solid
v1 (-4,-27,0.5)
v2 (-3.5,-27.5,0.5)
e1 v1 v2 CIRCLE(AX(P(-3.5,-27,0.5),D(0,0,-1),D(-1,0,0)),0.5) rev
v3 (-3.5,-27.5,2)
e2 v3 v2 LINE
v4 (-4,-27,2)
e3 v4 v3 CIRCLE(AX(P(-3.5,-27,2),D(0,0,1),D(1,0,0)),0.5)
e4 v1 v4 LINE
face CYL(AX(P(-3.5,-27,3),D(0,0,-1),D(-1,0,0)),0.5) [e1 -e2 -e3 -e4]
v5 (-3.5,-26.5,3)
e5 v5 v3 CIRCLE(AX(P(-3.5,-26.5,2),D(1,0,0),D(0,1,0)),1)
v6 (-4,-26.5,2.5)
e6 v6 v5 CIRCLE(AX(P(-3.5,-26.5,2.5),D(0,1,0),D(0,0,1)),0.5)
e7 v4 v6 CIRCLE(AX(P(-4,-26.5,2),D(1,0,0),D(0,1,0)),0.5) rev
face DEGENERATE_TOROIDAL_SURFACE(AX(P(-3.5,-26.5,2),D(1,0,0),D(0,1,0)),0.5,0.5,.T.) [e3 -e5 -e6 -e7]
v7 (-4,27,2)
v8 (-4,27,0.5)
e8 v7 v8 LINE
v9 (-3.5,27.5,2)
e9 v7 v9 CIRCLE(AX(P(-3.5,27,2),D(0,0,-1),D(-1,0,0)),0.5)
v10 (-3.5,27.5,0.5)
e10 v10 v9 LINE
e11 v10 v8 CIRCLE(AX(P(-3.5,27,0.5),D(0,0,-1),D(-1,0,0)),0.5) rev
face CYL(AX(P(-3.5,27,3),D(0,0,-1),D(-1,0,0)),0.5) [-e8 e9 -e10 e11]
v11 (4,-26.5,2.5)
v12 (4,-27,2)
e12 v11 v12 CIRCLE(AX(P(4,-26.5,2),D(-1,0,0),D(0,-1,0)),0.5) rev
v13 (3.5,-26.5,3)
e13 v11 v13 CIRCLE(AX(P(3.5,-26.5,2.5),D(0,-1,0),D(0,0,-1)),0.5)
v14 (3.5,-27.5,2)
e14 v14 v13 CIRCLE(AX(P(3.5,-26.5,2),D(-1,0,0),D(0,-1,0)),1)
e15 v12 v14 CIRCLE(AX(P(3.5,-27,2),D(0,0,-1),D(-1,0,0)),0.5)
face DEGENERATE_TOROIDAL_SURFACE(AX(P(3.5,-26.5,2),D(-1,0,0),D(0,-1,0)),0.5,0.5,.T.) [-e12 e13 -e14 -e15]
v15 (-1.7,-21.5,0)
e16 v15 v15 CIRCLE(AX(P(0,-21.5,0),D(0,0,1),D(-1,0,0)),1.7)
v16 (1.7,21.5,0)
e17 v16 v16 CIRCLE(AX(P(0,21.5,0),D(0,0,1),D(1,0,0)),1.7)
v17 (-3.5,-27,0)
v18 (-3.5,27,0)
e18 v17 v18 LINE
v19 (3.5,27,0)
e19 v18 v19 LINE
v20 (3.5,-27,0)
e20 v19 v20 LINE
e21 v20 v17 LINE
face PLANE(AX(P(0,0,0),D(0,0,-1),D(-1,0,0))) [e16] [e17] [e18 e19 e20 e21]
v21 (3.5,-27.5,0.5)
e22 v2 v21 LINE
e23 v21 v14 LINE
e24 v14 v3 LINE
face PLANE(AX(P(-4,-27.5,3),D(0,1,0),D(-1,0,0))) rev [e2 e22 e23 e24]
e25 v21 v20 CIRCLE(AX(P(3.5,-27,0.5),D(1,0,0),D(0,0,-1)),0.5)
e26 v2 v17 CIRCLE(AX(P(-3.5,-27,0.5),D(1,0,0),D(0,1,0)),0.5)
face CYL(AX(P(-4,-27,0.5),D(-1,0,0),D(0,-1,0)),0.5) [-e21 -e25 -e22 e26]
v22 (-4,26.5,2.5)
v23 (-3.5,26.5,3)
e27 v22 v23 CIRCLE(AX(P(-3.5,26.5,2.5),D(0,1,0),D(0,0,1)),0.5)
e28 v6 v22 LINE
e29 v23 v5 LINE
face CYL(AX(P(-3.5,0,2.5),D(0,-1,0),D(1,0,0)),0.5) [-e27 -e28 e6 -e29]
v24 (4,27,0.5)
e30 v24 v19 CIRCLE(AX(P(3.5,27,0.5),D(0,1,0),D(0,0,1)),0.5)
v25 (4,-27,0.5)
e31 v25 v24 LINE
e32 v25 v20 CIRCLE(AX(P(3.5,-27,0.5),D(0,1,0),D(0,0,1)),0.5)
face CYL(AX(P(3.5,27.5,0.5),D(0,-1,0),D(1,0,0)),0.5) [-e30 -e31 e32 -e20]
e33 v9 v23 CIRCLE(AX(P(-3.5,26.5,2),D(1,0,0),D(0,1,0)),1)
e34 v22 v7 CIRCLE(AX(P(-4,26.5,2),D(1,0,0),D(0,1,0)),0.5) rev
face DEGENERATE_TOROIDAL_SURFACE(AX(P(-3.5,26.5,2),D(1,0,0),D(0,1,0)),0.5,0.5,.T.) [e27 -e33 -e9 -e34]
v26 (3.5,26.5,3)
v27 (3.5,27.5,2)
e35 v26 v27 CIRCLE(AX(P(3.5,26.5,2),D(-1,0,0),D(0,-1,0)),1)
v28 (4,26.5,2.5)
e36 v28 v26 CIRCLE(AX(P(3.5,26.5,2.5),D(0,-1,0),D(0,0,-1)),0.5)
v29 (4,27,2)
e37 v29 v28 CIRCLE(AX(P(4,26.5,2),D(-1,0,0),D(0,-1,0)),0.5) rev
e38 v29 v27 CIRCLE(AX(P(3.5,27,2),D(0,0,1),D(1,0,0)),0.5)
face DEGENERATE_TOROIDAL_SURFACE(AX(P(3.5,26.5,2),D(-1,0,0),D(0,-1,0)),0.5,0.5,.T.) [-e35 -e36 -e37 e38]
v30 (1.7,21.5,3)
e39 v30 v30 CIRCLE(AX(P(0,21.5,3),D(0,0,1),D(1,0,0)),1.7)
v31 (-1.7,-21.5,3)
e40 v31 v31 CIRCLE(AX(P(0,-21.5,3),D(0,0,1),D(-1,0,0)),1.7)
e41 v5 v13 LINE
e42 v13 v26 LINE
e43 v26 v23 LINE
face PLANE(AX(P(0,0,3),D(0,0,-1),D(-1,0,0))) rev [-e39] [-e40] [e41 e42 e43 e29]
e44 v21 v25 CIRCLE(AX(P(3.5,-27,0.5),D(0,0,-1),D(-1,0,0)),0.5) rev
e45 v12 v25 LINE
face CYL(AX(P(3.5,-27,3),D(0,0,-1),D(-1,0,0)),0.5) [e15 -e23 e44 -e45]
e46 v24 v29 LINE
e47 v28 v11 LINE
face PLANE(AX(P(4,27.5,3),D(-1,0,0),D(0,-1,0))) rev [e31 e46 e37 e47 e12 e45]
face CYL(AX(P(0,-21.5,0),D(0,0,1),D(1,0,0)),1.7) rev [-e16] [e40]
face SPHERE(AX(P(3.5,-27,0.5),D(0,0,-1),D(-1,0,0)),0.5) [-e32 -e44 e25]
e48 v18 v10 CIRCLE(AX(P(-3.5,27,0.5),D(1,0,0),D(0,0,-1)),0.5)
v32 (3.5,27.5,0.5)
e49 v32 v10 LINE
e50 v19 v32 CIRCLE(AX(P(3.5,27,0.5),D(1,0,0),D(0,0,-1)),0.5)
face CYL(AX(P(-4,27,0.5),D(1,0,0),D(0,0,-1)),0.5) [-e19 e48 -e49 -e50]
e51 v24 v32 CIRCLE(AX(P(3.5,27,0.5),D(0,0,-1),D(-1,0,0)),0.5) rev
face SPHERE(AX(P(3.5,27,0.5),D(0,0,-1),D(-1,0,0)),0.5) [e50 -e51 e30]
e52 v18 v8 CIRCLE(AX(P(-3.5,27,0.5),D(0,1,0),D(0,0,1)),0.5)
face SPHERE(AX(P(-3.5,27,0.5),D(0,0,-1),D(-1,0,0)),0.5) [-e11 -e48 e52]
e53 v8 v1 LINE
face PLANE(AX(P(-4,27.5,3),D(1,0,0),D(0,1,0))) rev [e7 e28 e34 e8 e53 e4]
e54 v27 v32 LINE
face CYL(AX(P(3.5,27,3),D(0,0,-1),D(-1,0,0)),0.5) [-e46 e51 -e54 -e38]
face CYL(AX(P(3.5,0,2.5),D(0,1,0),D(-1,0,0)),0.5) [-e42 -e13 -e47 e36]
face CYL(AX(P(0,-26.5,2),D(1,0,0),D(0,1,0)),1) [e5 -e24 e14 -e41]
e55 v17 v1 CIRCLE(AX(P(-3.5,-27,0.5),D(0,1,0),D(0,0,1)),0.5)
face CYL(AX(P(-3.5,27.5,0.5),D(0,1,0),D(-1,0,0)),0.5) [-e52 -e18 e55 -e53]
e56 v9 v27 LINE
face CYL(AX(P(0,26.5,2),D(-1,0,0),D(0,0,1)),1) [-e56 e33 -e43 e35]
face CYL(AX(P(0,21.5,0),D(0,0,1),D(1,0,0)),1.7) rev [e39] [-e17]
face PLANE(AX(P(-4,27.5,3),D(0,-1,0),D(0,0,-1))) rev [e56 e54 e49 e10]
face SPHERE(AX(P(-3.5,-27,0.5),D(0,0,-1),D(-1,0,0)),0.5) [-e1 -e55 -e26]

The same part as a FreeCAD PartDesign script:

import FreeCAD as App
import Part
import Sketcher
Q = App.Units.Quantity


def edges_at(feature, points):
    """Names of the edges that pass closest to the given points."""
    edges = feature.Shape.Edges
    near = lambda p: min(range(len(edges)), key=lambda i: edges[i].distToShape(Part.Vertex(*p))[0])
    return sorted({f"Edge{near(p) + 1}" for p in points})

doc = App.newDocument("Part")
body = doc.addObject("PartDesign::Body", "Body")

# Sketch on XY plane
sketch1 = body.newObject("Sketcher::SketchObject", "Sketch")
sketch1.AttachmentSupport = (doc.getObject("XY_Plane"), [""])
sketch1.MapMode = "FlatFace"
sketch1.addGeometry(Part.LineSegment(App.Vector(-4, -27.5, 0), App.Vector(4, -27.5, 0)), False)
sketch1.addGeometry(Part.LineSegment(App.Vector(4, -27.5, 0), App.Vector(4, 27.5, 0)), False)
sketch1.addGeometry(Part.LineSegment(App.Vector(4, 27.5, 0), App.Vector(-4, 27.5, 0)), False)
sketch1.addGeometry(Part.LineSegment(App.Vector(-4, 27.5, 0), App.Vector(-4, -27.5, 0)), False)
sketch1.addConstraint(Sketcher.Constraint("Coincident", 0, 2, 1, 1))
sketch1.addConstraint(Sketcher.Constraint("Coincident", 1, 2, 2, 1))
sketch1.addConstraint(Sketcher.Constraint("Coincident", 2, 2, 3, 1))
sketch1.addConstraint(Sketcher.Constraint("Coincident", 3, 2, 0, 1))
sketch1.addConstraint(Sketcher.Constraint("Horizontal", 0))
sketch1.addConstraint(Sketcher.Constraint("Vertical", 1))
sketch1.addConstraint(Sketcher.Constraint("Horizontal", 2))
sketch1.addConstraint(Sketcher.Constraint("Vertical", 3))
sketch1.addConstraint(Sketcher.Constraint("Symmetric", 0, 2, 2, 2, -1, 1))
sketch1.addConstraint(Sketcher.Constraint("DistanceX", 0, 1, 0, 2, Q("8 mm")))
sketch1.addConstraint(Sketcher.Constraint("DistanceY", 1, 1, 1, 2, Q("55 mm")))
pad1 = body.newObject("PartDesign::Pad", "Pad")
pad1.Profile = sketch1
pad1.Length = 3

# Sketch on XY plane
sketch2 = body.newObject("Sketcher::SketchObject", "Sketch001")
sketch2.AttachmentSupport = (doc.getObject("XY_Plane"), [""])
sketch2.MapMode = "FlatFace"
sketch2.AttachmentOffset = App.Placement(App.Vector(0, 0, 3), App.Rotation())
sketch2.addGeometry(Part.Circle(App.Vector(0, 21.5, 0), App.Vector(0, 0, 1), 1.7), False)
sketch2.addGeometry(Part.Circle(App.Vector(0, -21.5, 0), App.Vector(0, 0, 1), 1.7), False)
sketch2.addConstraint(Sketcher.Constraint("Equal", 0, 1))
sketch2.addConstraint(Sketcher.Constraint("Symmetric", 0, 3, 1, 3, -1, 1))
sketch2.addConstraint(Sketcher.Constraint("PointOnObject", 0, 3, -2))
sketch2.addConstraint(Sketcher.Constraint("Diameter", 0, Q("3.4 mm")))
sketch2.addConstraint(Sketcher.Constraint("DistanceY", 1, 3, 0, 3, Q("43 mm")))
pocket1 = body.newObject("PartDesign::Pocket", "Pocket")
pocket1.Profile = sketch2
pocket1.Length = 3
doc.recompute()

fillet = body.newObject("PartDesign::Fillet", "Fillet")
fillet.Base = (pocket1, edges_at(pocket1, [(0, 27.5, 3), (0, -27.5, 3)]))
fillet.Radius = 1
doc.recompute()

fillet2 = body.newObject("PartDesign::Fillet", "Fillet001")
fillet2.Base = (fillet, edges_at(fillet, [
    (4, 0, 3),
    (-4, 0, 3),
    (4, 27.5, 1),
    (4, -27.5, 1),
    (4, 27.207, 2.707),
    (4, -27.207, 2.707),
    (-4, -27.5, 1),
    (-4, 27.5, 1),
    (-4, 27.207, 2.707),
    (-4, -27.207, 2.707),
]))
fillet2.Radius = 0.5
doc.recompute()

fillet3 = body.newObject("PartDesign::Fillet", "Fillet002")
fillet3.Base = (fillet2, edges_at(fillet2, [
    (4, 0, 0),
    (0, -27.5, 0),
    (-4, 0, 0),
    (0, 27.5, 0),
    (-3.854, -27.354, 0),
    (-3.854, 27.354, 0),
    (3.854, 27.354, 0),
    (3.854, -27.354, 0),
]))
fillet3.Radius = 0.5

doc.recompute()
